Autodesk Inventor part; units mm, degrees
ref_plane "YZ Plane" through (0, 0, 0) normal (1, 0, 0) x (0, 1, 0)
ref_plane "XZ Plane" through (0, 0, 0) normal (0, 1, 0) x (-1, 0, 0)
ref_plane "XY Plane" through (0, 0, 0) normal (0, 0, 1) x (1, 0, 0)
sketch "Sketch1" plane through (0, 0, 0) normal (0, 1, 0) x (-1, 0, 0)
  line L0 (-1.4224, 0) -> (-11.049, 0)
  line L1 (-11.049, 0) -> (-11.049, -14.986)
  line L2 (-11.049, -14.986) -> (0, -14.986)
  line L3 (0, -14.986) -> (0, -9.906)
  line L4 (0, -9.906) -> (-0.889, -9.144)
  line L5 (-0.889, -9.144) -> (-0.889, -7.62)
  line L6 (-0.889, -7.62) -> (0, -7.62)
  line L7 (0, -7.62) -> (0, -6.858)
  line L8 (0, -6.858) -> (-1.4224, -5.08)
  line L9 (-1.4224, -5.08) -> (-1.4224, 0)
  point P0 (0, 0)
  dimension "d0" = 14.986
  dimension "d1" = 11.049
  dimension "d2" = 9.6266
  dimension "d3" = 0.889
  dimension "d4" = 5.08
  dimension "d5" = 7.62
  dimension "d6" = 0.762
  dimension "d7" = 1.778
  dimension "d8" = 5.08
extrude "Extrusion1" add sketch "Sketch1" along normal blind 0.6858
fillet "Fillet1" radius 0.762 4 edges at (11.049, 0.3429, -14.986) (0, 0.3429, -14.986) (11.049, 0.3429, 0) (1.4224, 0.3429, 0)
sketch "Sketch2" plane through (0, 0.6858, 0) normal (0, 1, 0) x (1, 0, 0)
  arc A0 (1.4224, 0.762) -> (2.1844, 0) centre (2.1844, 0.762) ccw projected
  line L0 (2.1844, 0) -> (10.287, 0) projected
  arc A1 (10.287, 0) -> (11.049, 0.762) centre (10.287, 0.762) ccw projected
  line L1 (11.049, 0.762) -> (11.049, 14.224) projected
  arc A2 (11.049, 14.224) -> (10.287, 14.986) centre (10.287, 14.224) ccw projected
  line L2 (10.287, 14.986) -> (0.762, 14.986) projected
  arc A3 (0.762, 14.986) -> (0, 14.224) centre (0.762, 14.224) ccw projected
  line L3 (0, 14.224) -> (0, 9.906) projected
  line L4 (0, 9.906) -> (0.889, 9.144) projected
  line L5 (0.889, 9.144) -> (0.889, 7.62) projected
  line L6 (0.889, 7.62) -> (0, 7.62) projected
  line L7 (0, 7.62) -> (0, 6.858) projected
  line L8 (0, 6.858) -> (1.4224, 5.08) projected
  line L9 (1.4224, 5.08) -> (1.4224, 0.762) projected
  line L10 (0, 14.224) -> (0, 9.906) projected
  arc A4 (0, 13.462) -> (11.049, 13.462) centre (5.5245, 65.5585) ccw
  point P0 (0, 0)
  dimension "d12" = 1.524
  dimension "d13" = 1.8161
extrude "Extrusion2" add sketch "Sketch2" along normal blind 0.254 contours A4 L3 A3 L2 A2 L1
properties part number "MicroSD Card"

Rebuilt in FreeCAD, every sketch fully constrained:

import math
import FreeCAD as App
import Part
import Sketcher
Q = App.Units.Quantity


def edges_at(feature, points):
    """Names of the edges that pass closest to the given points."""
    edges = feature.Shape.Edges
    near = lambda p: min(range(len(edges)), key=lambda i: edges[i].distToShape(Part.Vertex(*p))[0])
    return sorted({f"Edge{near(p) + 1}" for p in points})

doc = App.newDocument("Part")
params = doc.addObject("Spreadsheet::Sheet", "Params")
for row, (alias, value) in enumerate([
    ("sketch1_height", "0.2 in"),
    ("sketch1_height2", "0.59 in"),
    ("sketch1_height3", "0.03 in"),
    ("sketch1_width", "0.379 in"),
    ("sketch1_width2", "0.435 in"),
    ("pad1_length", "0.027 in"),
    ("fillet_radius", "0.03 in"),
    ("sketch2_radius", "0.03 in"),
    ("sketch2_width", "0.375 in"),
    ("pad2_length", "0.01 in"),
], start=1):
    params.set(f"A{row}", alias)
    params.set(f"B{row}", "=" + value)
    params.setAlias(f"B{row}", alias)

body = doc.addObject("PartDesign::Body", "Body")

sketch1 = body.newObject("Sketcher::SketchObject", "Sketch")
sketch1.AttachmentSupport = (doc.getObject("XZ_Plane"), [""])
sketch1.MapMode = "FlatFace"
sketch1.addGeometry(Part.LineSegment(App.Vector(1.4, -5.1, 0), App.Vector(1.4, 0, 0)), False)
sketch1.addGeometry(Part.LineSegment(App.Vector(1.4, 0, 0), App.Vector(11, 0, 0)), False)
sketch1.addGeometry(Part.LineSegment(App.Vector(11, 0, 0), App.Vector(11, -15, 0)), False)
sketch1.addGeometry(Part.LineSegment(App.Vector(11, -15, 0), App.Vector(0, -15, 0)), False)
sketch1.addGeometry(Part.LineSegment(App.Vector(0, -15, 0), App.Vector(0, -9.9, 0)), False)
sketch1.addGeometry(Part.LineSegment(App.Vector(0, -9.9, 0), App.Vector(0.9, -9.1, 0)), False)
sketch1.addGeometry(Part.LineSegment(App.Vector(0.9, -9.1, 0), App.Vector(0.9, -7.6, 0)), False)
sketch1.addGeometry(Part.LineSegment(App.Vector(0.9, -7.6, 0), App.Vector(0, -7.6, 0)), False)
sketch1.addGeometry(Part.LineSegment(App.Vector(0, -7.6, 0), App.Vector(0, -6.9, 0)), False)
sketch1.addGeometry(Part.LineSegment(App.Vector(0, -6.9, 0), App.Vector(1.4, -5.1, 0)), False)
sketch1.addConstraint(Sketcher.Constraint("Coincident", 0, 2, 1, 1))
sketch1.addConstraint(Sketcher.Constraint("Coincident", 1, 2, 2, 1))
sketch1.addConstraint(Sketcher.Constraint("Coincident", 2, 2, 3, 1))
sketch1.addConstraint(Sketcher.Constraint("Coincident", 3, 2, 4, 1))
sketch1.addConstraint(Sketcher.Constraint("Coincident", 4, 2, 5, 1))
sketch1.addConstraint(Sketcher.Constraint("Coincident", 5, 2, 6, 1))
sketch1.addConstraint(Sketcher.Constraint("Coincident", 6, 2, 7, 1))
sketch1.addConstraint(Sketcher.Constraint("Coincident", 7, 2, 8, 1))
sketch1.addConstraint(Sketcher.Constraint("Coincident", 8, 2, 9, 1))
sketch1.addConstraint(Sketcher.Constraint("Coincident", 9, 2, 0, 1))
sketch1.addConstraint(Sketcher.Constraint("Vertical", 0))
sketch1.addConstraint(Sketcher.Constraint("Horizontal", 1))
sketch1.addConstraint(Sketcher.Constraint("Vertical", 2))
sketch1.addConstraint(Sketcher.Constraint("Horizontal", 3))
sketch1.addConstraint(Sketcher.Constraint("Vertical", 4))
sketch1.addConstraint(Sketcher.Constraint("Vertical", 6))
sketch1.addConstraint(Sketcher.Constraint("Horizontal", 7))
sketch1.addConstraint(Sketcher.Constraint("Vertical", 8))
sketch1.addConstraint(Sketcher.Constraint("PointOnObject", 0, 2, -1))
sketch1.addConstraint(Sketcher.Constraint("PointOnObject", 3, 2, -2))
sketch1.addConstraint(Sketcher.Constraint("PointOnObject", 7, 2, -2))
sketch1.addConstraint(Sketcher.Constraint("Equal", 0, 4))
sketch1.addConstraint(Sketcher.Constraint("DistanceY", 0, 1, 0, 2, Q("0.2 in")))
sketch1.addConstraint(Sketcher.Constraint("DistanceY", 2, 2, 2, 1, Q("0.59 in")))
sketch1.addConstraint(Sketcher.Constraint("DistanceY", 8, 1, 8, 2, Q("0.03 in")))
sketch1.addConstraint(Sketcher.Constraint("DistanceY", 6, 2, -1, 1, Q("0.3 in")))
sketch1.addConstraint(Sketcher.Constraint("DistanceX", 1, 1, 1, 2, Q("0.379 in")))
sketch1.addConstraint(Sketcher.Constraint("DistanceX", 3, 2, 3, 1, Q("0.435 in")))
sketch1.addConstraint(Sketcher.Constraint("DistanceX", 7, 2, 7, 1, Q("0.035 in")))
sketch1.addConstraint(Sketcher.Constraint("DistanceY", 4, 2, 5, 2, Q("0.03 in")))
sketch1.setExpression("Constraints[22]", "Params.sketch1_height")
sketch1.setExpression("Constraints[23]", "Params.sketch1_height2")
sketch1.setExpression("Constraints[24]", "Params.sketch1_height3")
sketch1.setExpression("Constraints[26]", "Params.sketch1_width")
sketch1.setExpression("Constraints[27]", "Params.sketch1_width2")
pad1 = body.newObject("PartDesign::Pad", "Pad")
pad1.Profile = sketch1
pad1.setExpression("Length", "Params.pad1_length")
pad1.Reversed = True
doc.recompute()

fillet = body.newObject("PartDesign::Fillet", "Fillet")
fillet.Base = (pad1, edges_at(pad1, [
    (11.049, 0.343, -14.986),
    (0, 0.343, -14.986),
    (11.049, 0.343, 0),
    (1.422, 0.343, 0),
]))
fillet.setExpression("Radius", "Params.fillet_radius")

sketch2 = body.newObject("Sketcher::SketchObject", "Sketch001")
sketch2.AttachmentSupport = (doc.getObject("XZ_Plane"), [""])
sketch2.MapMode = "FlatFace"
sketch2.AttachmentOffset = App.Placement(App.Vector(0, 0, -0.027 * 25.4), App.Rotation())
sketch2.addGeometry(Part.ArcOfCircle(Part.Circle(App.Vector(5.5, -65.6, 0), App.Vector(0, 0, 1), 52.4), math.radians(83.95), math.radians(96.05)), False)
sketch2.addGeometry(Part.LineSegment(App.Vector(11, -13.5, 0), App.Vector(11, -14.2, 0)), False)
sketch2.addGeometry(Part.ArcOfCircle(Part.Circle(App.Vector(10.3, -14.2, 0), App.Vector(0, 0, 1), 0.8), math.radians(-90), math.radians(0)), False)
sketch2.addGeometry(Part.LineSegment(App.Vector(10.3, -15, 0), App.Vector(0.8, -15, 0)), False)
sketch2.addGeometry(Part.ArcOfCircle(Part.Circle(App.Vector(0.8, -14.2, 0), App.Vector(0, 0, 1), 0.8), math.radians(180), math.radians(270)), False)
sketch2.addGeometry(Part.LineSegment(App.Vector(0, -14.2, 0), App.Vector(0, -13.5, 0)), False)
sketch2.addConstraint(Sketcher.Constraint("Coincident", 0, 1, 1, 1))
sketch2.addConstraint(Sketcher.Constraint("Tangent", 1, 2, 2, 2))
sketch2.addConstraint(Sketcher.Constraint("Tangent", 2, 1, 3, 1))
sketch2.addConstraint(Sketcher.Constraint("Tangent", 3, 2, 4, 2))
sketch2.addConstraint(Sketcher.Constraint("Tangent", 4, 1, 5, 1))
sketch2.addConstraint(Sketcher.Constraint("Coincident", 5, 2, 0, 2))
sketch2.addConstraint(Sketcher.Constraint("Vertical", 1))
sketch2.addConstraint(Sketcher.Constraint("Horizontal", 3))
sketch2.addConstraint(Sketcher.Constraint("Vertical", 5))
sketch2.addConstraint(Sketcher.Constraint("Equal", 2, 4))
sketch2.addConstraint(Sketcher.Constraint("PointOnObject", 4, 1, -2))
sketch2.addConstraint(Sketcher.Constraint("Horizontal", 0, 1, 5, 2))
sketch2.addConstraint(Sketcher.Constraint("Radius", 2, Q("0.03 in")))
sketch2.addConstraint(Sketcher.Constraint("DistanceY", 2, 1, 0, 1, Q("0.06 in")))
sketch2.addConstraint(Sketcher.Constraint("DistanceX", 3, 2, 3, 1, Q("0.375 in")))
sketch2.addConstraint(Sketcher.Constraint("DistanceY", 2, 3, -1, 1, Q("0.56 in")))
sketch2.addConstraint(Sketcher.Constraint("Radius", 0, Q("52.3886 mm")))
sketch2.setExpression("Constraints[12]", "Params.sketch2_radius")
sketch2.setExpression("Constraints[14]", "Params.sketch2_width")
pad2 = body.newObject("PartDesign::Pad", "Pad001")
pad2.Profile = sketch2
pad2.setExpression("Length", "Params.pad2_length")
pad2.Reversed = True

doc.recompute()
